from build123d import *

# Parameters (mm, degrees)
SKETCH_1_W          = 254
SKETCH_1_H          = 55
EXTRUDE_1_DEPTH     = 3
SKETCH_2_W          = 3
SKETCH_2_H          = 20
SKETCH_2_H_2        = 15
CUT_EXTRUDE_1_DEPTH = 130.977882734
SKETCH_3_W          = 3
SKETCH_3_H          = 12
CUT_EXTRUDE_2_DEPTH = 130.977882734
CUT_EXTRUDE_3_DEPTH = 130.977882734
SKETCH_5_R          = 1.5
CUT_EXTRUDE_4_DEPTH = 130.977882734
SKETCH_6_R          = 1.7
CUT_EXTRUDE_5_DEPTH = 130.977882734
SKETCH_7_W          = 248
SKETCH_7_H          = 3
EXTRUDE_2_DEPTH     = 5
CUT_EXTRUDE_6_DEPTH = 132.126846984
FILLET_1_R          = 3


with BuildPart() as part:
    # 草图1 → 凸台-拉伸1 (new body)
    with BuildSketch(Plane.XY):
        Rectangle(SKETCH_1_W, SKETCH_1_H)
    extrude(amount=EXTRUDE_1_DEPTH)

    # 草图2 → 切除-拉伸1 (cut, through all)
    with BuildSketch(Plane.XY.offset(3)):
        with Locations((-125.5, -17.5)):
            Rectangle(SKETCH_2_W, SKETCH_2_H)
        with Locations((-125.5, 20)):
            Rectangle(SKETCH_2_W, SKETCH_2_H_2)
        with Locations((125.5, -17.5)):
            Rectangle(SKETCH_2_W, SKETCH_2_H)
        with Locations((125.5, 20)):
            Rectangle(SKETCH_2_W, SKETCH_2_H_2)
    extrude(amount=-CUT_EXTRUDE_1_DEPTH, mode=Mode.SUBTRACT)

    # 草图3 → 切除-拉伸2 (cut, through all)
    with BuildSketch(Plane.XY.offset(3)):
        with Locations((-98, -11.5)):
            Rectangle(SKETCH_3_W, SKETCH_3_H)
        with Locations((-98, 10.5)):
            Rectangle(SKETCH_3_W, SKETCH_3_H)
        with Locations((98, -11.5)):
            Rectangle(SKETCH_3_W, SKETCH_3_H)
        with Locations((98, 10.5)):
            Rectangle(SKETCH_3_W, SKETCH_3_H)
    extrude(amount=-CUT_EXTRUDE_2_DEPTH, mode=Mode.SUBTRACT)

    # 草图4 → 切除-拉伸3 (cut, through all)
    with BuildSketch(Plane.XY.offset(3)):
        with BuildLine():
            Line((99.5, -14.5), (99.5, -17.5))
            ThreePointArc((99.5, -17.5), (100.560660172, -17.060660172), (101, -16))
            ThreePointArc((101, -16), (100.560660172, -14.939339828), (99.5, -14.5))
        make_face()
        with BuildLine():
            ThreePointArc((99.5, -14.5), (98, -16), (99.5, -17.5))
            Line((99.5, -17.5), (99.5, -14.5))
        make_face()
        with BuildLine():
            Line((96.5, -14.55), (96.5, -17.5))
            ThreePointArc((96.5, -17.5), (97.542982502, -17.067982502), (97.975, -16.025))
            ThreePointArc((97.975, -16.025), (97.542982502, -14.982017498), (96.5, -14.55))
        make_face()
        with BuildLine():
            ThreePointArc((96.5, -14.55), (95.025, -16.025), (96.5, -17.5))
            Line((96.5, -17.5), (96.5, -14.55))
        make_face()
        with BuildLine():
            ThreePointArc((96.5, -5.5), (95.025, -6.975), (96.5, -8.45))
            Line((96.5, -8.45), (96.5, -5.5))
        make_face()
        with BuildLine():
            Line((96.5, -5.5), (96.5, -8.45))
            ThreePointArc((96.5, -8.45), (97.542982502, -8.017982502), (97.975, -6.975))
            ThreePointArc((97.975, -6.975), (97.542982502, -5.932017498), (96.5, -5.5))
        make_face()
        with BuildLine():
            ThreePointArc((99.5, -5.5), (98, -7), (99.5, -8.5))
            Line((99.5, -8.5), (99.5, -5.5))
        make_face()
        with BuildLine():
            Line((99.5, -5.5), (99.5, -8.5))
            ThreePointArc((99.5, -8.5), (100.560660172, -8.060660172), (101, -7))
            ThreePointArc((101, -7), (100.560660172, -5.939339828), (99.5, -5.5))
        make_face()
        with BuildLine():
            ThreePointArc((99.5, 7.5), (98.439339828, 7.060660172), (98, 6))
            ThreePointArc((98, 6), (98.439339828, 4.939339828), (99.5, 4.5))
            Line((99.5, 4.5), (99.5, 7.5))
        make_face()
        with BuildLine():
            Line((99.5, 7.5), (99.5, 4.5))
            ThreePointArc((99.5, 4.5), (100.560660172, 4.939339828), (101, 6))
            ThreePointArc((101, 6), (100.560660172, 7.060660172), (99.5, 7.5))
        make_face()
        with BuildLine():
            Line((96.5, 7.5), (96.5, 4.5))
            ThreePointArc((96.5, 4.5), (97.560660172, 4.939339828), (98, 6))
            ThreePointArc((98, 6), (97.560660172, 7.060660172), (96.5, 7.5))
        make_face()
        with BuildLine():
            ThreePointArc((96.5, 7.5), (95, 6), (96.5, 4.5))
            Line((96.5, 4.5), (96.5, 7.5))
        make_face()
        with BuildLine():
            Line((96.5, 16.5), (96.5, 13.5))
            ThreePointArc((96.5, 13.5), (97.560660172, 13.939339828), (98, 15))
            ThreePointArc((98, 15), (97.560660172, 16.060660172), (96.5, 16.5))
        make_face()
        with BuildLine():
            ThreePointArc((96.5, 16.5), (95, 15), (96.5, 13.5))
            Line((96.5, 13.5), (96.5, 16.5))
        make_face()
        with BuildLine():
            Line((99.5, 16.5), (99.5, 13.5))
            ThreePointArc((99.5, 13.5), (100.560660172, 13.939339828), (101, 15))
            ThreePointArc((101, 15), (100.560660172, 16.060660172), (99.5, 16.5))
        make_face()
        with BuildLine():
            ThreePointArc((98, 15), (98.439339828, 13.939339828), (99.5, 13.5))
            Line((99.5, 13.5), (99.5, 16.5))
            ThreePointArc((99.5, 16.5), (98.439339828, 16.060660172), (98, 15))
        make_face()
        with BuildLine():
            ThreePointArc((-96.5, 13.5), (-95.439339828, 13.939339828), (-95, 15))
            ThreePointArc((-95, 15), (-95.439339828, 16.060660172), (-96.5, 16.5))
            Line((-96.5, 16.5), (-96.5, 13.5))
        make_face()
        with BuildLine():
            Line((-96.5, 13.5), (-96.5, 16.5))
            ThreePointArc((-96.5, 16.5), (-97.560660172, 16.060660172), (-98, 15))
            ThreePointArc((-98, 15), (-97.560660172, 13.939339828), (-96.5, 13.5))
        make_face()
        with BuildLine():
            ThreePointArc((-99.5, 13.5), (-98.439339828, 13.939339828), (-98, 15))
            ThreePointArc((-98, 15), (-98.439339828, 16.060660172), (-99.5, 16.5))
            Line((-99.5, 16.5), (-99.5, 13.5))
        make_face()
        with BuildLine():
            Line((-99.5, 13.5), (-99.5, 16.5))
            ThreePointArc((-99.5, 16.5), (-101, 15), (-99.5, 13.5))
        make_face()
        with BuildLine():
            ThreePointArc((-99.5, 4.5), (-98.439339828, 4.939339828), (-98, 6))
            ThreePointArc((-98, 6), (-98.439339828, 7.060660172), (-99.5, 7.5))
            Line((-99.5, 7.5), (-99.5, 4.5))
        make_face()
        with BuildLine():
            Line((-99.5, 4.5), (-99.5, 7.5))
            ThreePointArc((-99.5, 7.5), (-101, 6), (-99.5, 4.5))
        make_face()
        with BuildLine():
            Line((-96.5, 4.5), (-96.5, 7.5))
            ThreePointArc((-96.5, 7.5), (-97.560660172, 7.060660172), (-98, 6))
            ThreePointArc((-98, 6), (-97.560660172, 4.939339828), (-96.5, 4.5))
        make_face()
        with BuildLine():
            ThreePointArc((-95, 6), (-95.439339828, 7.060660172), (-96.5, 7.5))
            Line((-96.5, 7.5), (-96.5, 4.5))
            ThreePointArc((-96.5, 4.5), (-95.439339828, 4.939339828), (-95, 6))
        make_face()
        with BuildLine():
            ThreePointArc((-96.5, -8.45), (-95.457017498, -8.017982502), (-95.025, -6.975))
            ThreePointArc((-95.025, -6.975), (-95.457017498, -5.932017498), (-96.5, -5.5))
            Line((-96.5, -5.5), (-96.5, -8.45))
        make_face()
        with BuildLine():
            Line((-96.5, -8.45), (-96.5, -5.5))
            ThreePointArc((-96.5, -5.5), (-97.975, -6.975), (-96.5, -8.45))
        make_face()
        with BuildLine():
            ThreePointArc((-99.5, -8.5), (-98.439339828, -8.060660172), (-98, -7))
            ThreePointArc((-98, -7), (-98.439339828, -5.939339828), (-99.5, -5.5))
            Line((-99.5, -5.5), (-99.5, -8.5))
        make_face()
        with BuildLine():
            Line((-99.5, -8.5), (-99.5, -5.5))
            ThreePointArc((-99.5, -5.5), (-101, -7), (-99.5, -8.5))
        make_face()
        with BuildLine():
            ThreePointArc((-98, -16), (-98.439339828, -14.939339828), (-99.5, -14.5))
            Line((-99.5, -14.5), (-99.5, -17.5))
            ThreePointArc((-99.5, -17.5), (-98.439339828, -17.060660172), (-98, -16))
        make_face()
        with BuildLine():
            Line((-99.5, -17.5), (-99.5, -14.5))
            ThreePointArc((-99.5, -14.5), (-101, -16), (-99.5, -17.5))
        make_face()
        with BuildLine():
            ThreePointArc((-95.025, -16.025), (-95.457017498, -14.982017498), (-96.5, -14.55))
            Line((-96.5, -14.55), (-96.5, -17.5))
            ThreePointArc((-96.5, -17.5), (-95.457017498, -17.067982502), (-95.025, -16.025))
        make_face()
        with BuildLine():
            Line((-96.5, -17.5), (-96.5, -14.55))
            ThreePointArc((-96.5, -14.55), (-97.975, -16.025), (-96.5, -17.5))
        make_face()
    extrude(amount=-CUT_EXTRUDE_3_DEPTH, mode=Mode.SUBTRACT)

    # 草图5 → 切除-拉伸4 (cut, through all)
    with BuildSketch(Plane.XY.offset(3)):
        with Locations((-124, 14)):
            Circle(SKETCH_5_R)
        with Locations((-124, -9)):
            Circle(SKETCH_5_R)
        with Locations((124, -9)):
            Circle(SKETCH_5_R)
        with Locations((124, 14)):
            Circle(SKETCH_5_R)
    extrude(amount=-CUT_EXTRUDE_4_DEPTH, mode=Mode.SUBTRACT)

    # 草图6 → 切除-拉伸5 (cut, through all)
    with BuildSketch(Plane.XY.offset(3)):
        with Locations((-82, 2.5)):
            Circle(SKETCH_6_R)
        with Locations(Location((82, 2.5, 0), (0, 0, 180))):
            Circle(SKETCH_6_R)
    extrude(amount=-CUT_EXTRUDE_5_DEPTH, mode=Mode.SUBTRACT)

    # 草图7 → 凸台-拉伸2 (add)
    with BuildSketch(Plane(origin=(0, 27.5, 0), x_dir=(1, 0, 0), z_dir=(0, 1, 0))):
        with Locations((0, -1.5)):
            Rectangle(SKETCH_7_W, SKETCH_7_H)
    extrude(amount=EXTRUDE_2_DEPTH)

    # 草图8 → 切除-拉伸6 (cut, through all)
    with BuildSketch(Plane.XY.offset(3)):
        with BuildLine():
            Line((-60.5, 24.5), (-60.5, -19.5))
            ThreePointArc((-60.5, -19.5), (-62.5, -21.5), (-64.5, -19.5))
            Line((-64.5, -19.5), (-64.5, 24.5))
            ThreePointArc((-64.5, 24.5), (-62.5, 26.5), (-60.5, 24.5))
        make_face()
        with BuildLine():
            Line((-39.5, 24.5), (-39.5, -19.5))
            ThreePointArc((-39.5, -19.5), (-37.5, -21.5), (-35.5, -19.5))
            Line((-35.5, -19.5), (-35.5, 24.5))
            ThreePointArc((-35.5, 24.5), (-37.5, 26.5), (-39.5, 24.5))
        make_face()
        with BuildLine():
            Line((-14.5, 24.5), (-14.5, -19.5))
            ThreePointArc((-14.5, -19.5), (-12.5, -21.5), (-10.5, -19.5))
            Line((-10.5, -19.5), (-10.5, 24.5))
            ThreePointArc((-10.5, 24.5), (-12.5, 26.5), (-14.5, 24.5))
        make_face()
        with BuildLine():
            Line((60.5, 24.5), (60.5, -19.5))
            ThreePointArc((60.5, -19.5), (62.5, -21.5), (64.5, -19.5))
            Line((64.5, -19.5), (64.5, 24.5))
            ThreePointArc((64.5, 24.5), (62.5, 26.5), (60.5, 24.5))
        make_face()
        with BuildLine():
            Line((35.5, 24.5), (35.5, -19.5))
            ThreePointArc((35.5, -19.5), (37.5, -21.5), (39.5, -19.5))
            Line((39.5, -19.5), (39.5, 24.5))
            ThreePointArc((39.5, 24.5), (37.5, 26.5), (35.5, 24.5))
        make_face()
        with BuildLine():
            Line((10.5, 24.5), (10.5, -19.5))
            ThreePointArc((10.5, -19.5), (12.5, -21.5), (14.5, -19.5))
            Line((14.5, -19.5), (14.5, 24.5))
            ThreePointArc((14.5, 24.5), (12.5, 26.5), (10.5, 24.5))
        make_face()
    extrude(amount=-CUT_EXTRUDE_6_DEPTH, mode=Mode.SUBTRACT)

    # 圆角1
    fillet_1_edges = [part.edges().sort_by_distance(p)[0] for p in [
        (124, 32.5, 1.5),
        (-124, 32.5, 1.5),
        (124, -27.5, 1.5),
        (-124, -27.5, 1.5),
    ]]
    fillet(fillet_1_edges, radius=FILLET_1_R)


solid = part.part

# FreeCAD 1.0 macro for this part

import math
import FreeCAD as App
import Part
import Sketcher
from FreeCAD import Vector
Q = App.Units.Quantity


def edges_at(feature, points):
    """Names of the edges that pass closest to the given points."""
    edges = feature.Shape.Edges
    near = lambda p: min(range(len(edges)), key=lambda i: edges[i].distToShape(Part.Vertex(*p))[0])
    return sorted({f"Edge{near(p) + 1}" for p in points})

doc = App.newDocument("Part")
body = doc.addObject("PartDesign::Body", "Body")

sketch1 = body.newObject("Sketcher::SketchObject", "Sketch")
sketch1.AttachmentSupport = (doc.getObject("XY_Plane"), [""])
sketch1.MapMode = "FlatFace"
sketch1.addGeometry(Part.LineSegment(Vector(-127, 28, 0), Vector(-127, -28, 0)), False)
sketch1.addGeometry(Part.LineSegment(Vector(-127, -28, 0), Vector(127, -28, 0)), False)
sketch1.addGeometry(Part.LineSegment(Vector(127, -28, 0), Vector(127, 28, 0)), False)
sketch1.addGeometry(Part.LineSegment(Vector(127, 28, 0), Vector(-127, 28, 0)), False)
sketch1.addConstraint(Sketcher.Constraint("Coincident", 0, 2, 1, 1))
sketch1.addConstraint(Sketcher.Constraint("Coincident", 1, 2, 2, 1))
sketch1.addConstraint(Sketcher.Constraint("Coincident", 2, 2, 3, 1))
sketch1.addConstraint(Sketcher.Constraint("Coincident", 3, 2, 0, 1))
sketch1.addConstraint(Sketcher.Constraint("Vertical", 0))
sketch1.addConstraint(Sketcher.Constraint("Horizontal", 1))
sketch1.addConstraint(Sketcher.Constraint("Vertical", 2))
sketch1.addConstraint(Sketcher.Constraint("Horizontal", 3))
sketch1.addConstraint(Sketcher.Constraint("Symmetric", 0, 2, 2, 2, -1, 1))
sketch1.addConstraint(Sketcher.Constraint("DistanceX", 1, 1, 1, 2, Q("254 mm")))
sketch1.addConstraint(Sketcher.Constraint("DistanceY", 0, 2, 0, 1, Q("55 mm")))
pad1 = body.newObject("PartDesign::Pad", "Pad")
pad1.Profile = sketch1
pad1.Length = 3

sketch2 = body.newObject("Sketcher::SketchObject", "Sketch001")
sketch2.AttachmentSupport = (doc.getObject("XY_Plane"), [""])
sketch2.MapMode = "FlatFace"
sketch2.AttachmentOffset = App.Placement(Vector(0, 0, 3), App.Rotation())
sketch2.addGeometry(Part.LineSegment(Vector(-127, -7.5, 0), Vector(-127, -27.5, 0)), False)
sketch2.addGeometry(Part.LineSegment(Vector(-127, -27.5, 0), Vector(-124, -27.5, 0)), False)
sketch2.addGeometry(Part.LineSegment(Vector(-124, -27.5, 0), Vector(-124, -7.5, 0)), False)
sketch2.addGeometry(Part.LineSegment(Vector(-124, -7.5, 0), Vector(-127, -7.5, 0)), False)
sketch2.addGeometry(Part.LineSegment(Vector(-127, 27.5, 0), Vector(-127, 12.5, 0)), False)
sketch2.addGeometry(Part.LineSegment(Vector(-127, 12.5, 0), Vector(-124, 12.5, 0)), False)
sketch2.addGeometry(Part.LineSegment(Vector(-124, 12.5, 0), Vector(-124, 27.5, 0)), False)
sketch2.addGeometry(Part.LineSegment(Vector(-124, 27.5, 0), Vector(-127, 27.5, 0)), False)
sketch2.addGeometry(Part.LineSegment(Vector(124, -7.5, 0), Vector(124, -27.5, 0)), False)
sketch2.addGeometry(Part.LineSegment(Vector(124, -27.5, 0), Vector(127, -27.5, 0)), False)
sketch2.addGeometry(Part.LineSegment(Vector(127, -27.5, 0), Vector(127, -7.5, 0)), False)
sketch2.addGeometry(Part.LineSegment(Vector(127, -7.5, 0), Vector(124, -7.5, 0)), False)
sketch2.addGeometry(Part.LineSegment(Vector(124, 27.5, 0), Vector(124, 12.5, 0)), False)
sketch2.addGeometry(Part.LineSegment(Vector(124, 12.5, 0), Vector(127, 12.5, 0)), False)
sketch2.addGeometry(Part.LineSegment(Vector(127, 12.5, 0), Vector(127, 27.5, 0)), False)
sketch2.addGeometry(Part.LineSegment(Vector(127, 27.5, 0), Vector(124, 27.5, 0)), False)
sketch2.addConstraint(Sketcher.Constraint("Coincident", 0, 2, 1, 1))
sketch2.addConstraint(Sketcher.Constraint("Coincident", 1, 2, 2, 1))
sketch2.addConstraint(Sketcher.Constraint("Coincident", 2, 2, 3, 1))
sketch2.addConstraint(Sketcher.Constraint("Coincident", 3, 2, 0, 1))
sketch2.addConstraint(Sketcher.Constraint("Coincident", 4, 2, 5, 1))
sketch2.addConstraint(Sketcher.Constraint("Coincident", 5, 2, 6, 1))
sketch2.addConstraint(Sketcher.Constraint("Coincident", 6, 2, 7, 1))
sketch2.addConstraint(Sketcher.Constraint("Coincident", 7, 2, 4, 1))
sketch2.addConstraint(Sketcher.Constraint("Coincident", 8, 2, 9, 1))
sketch2.addConstraint(Sketcher.Constraint("Coincident", 9, 2, 10, 1))
sketch2.addConstraint(Sketcher.Constraint("Coincident", 10, 2, 11, 1))
sketch2.addConstraint(Sketcher.Constraint("Coincident", 11, 2, 8, 1))
sketch2.addConstraint(Sketcher.Constraint("Coincident", 12, 2, 13, 1))
sketch2.addConstraint(Sketcher.Constraint("Coincident", 13, 2, 14, 1))
sketch2.addConstraint(Sketcher.Constraint("Coincident", 14, 2, 15, 1))
sketch2.addConstraint(Sketcher.Constraint("Coincident", 15, 2, 12, 1))
sketch2.addConstraint(Sketcher.Constraint("Vertical", 0))
sketch2.addConstraint(Sketcher.Constraint("Horizontal", 1))
sketch2.addConstraint(Sketcher.Constraint("Vertical", 2))
sketch2.addConstraint(Sketcher.Constraint("Horizontal", 3))
sketch2.addConstraint(Sketcher.Constraint("Vertical", 4))
sketch2.addConstraint(Sketcher.Constraint("Horizontal", 5))
sketch2.addConstraint(Sketcher.Constraint("Vertical", 6))
sketch2.addConstraint(Sketcher.Constraint("Horizontal", 7))
sketch2.addConstraint(Sketcher.Constraint("Vertical", 8))
sketch2.addConstraint(Sketcher.Constraint("Horizontal", 9))
sketch2.addConstraint(Sketcher.Constraint("Vertical", 10))
sketch2.addConstraint(Sketcher.Constraint("Horizontal", 11))
sketch2.addConstraint(Sketcher.Constraint("Vertical", 12))
sketch2.addConstraint(Sketcher.Constraint("Horizontal", 13))
sketch2.addConstraint(Sketcher.Constraint("Vertical", 14))
sketch2.addConstraint(Sketcher.Constraint("Horizontal", 15))
sketch2.addConstraint(Sketcher.Constraint("Symmetric", 6, 2, 8, 2, -1, 1))
sketch2.addConstraint(Sketcher.Constraint("Symmetric", 0, 2, 14, 2, -1, 1))
sketch2.addConstraint(Sketcher.Constraint("Symmetric", 1, 2, 8, 2, -2))
sketch2.addConstraint(Sketcher.Constraint("Symmetric", 3, 2, 10, 2, -2))
sketch2.addConstraint(Sketcher.Constraint("Symmetric", 5, 2, 12, 2, -2))
sketch2.addConstraint(Sketcher.Constraint("Vertical", 3, 2, 4, 2))
sketch2.addConstraint(Sketcher.Constraint("DistanceX", 1, 1, 1, 2, Q("3 mm")))
sketch2.addConstraint(Sketcher.Constraint("DistanceY", 0, 2, 0, 1, Q("20 mm")))
sketch2.addConstraint(Sketcher.Constraint("DistanceY", 4, 2, 4, 1, Q("15 mm")))
sketch2.addConstraint(Sketcher.Constraint("DistanceX", 0, 2, -1, 1, Q("127 mm")))
sketch2.addConstraint(Sketcher.Constraint("DistanceY", 3, 2, 4, 2, Q("20 mm")))
pocket1 = body.newObject("PartDesign::Pocket", "Pocket")
pocket1.Profile = sketch2
pocket1.Type = "ThroughAll"

sketch3 = body.newObject("Sketcher::SketchObject", "Sketch002")
sketch3.AttachmentSupport = (doc.getObject("XY_Plane"), [""])
sketch3.MapMode = "FlatFace"
sketch3.AttachmentOffset = App.Placement(Vector(0, 0, 3), App.Rotation())
sketch3.addGeometry(Part.LineSegment(Vector(-99.5, -5.5, 0), Vector(-99.5, -17.5, 0)), False)
sketch3.addGeometry(Part.LineSegment(Vector(-99.5, -17.5, 0), Vector(-96.5, -17.5, 0)), False)
sketch3.addGeometry(Part.LineSegment(Vector(-96.5, -17.5, 0), Vector(-96.5, -5.5, 0)), False)
sketch3.addGeometry(Part.LineSegment(Vector(-96.5, -5.5, 0), Vector(-99.5, -5.5, 0)), False)
sketch3.addGeometry(Part.LineSegment(Vector(-99.5, 16.5, 0), Vector(-99.5, 4.5, 0)), False)
sketch3.addGeometry(Part.LineSegment(Vector(-99.5, 4.5, 0), Vector(-96.5, 4.5, 0)), False)
sketch3.addGeometry(Part.LineSegment(Vector(-96.5, 4.5, 0), Vector(-96.5, 16.5, 0)), False)
sketch3.addGeometry(Part.LineSegment(Vector(-96.5, 16.5, 0), Vector(-99.5, 16.5, 0)), False)
sketch3.addGeometry(Part.LineSegment(Vector(96.5, -5.5, 0), Vector(96.5, -17.5, 0)), False)
sketch3.addGeometry(Part.LineSegment(Vector(96.5, -17.5, 0), Vector(99.5, -17.5, 0)), False)
sketch3.addGeometry(Part.LineSegment(Vector(99.5, -17.5, 0), Vector(99.5, -5.5, 0)), False)
sketch3.addGeometry(Part.LineSegment(Vector(99.5, -5.5, 0), Vector(96.5, -5.5, 0)), False)
sketch3.addGeometry(Part.LineSegment(Vector(96.5, 16.5, 0), Vector(96.5, 4.5, 0)), False)
sketch3.addGeometry(Part.LineSegment(Vector(96.5, 4.5, 0), Vector(99.5, 4.5, 0)), False)
sketch3.addGeometry(Part.LineSegment(Vector(99.5, 4.5, 0), Vector(99.5, 16.5, 0)), False)
sketch3.addGeometry(Part.LineSegment(Vector(99.5, 16.5, 0), Vector(96.5, 16.5, 0)), False)
sketch3.addConstraint(Sketcher.Constraint("Coincident", 0, 2, 1, 1))
sketch3.addConstraint(Sketcher.Constraint("Coincident", 1, 2, 2, 1))
sketch3.addConstraint(Sketcher.Constraint("Coincident", 2, 2, 3, 1))
sketch3.addConstraint(Sketcher.Constraint("Coincident", 3, 2, 0, 1))
sketch3.addConstraint(Sketcher.Constraint("Coincident", 4, 2, 5, 1))
sketch3.addConstraint(Sketcher.Constraint("Coincident", 5, 2, 6, 1))
sketch3.addConstraint(Sketcher.Constraint("Coincident", 6, 2, 7, 1))
sketch3.addConstraint(Sketcher.Constraint("Coincident", 7, 2, 4, 1))
sketch3.addConstraint(Sketcher.Constraint("Coincident", 8, 2, 9, 1))
sketch3.addConstraint(Sketcher.Constraint("Coincident", 9, 2, 10, 1))
sketch3.addConstraint(Sketcher.Constraint("Coincident", 10, 2, 11, 1))
sketch3.addConstraint(Sketcher.Constraint("Coincident", 11, 2, 8, 1))
sketch3.addConstraint(Sketcher.Constraint("Coincident", 12, 2, 13, 1))
sketch3.addConstraint(Sketcher.Constraint("Coincident", 13, 2, 14, 1))
sketch3.addConstraint(Sketcher.Constraint("Coincident", 14, 2, 15, 1))
sketch3.addConstraint(Sketcher.Constraint("Coincident", 15, 2, 12, 1))
sketch3.addConstraint(Sketcher.Constraint("Vertical", 0))
sketch3.addConstraint(Sketcher.Constraint("Horizontal", 1))
sketch3.addConstraint(Sketcher.Constraint("Vertical", 2))
sketch3.addConstraint(Sketcher.Constraint("Horizontal", 3))
sketch3.addConstraint(Sketcher.Constraint("Vertical", 4))
sketch3.addConstraint(Sketcher.Constraint("Horizontal", 5))
sketch3.addConstraint(Sketcher.Constraint("Vertical", 6))
sketch3.addConstraint(Sketcher.Constraint("Horizontal", 7))
sketch3.addConstraint(Sketcher.Constraint("Vertical", 8))
sketch3.addConstraint(Sketcher.Constraint("Horizontal", 9))
sketch3.addConstraint(Sketcher.Constraint("Vertical", 10))
sketch3.addConstraint(Sketcher.Constraint("Horizontal", 11))
sketch3.addConstraint(Sketcher.Constraint("Vertical", 12))
sketch3.addConstraint(Sketcher.Constraint("Horizontal", 13))
sketch3.addConstraint(Sketcher.Constraint("Vertical", 14))
sketch3.addConstraint(Sketcher.Constraint("Horizontal", 15))
sketch3.addConstraint(Sketcher.Constraint("Symmetric", 1, 2, 8, 2, -2))
sketch3.addConstraint(Sketcher.Constraint("Symmetric", 3, 2, 10, 2, -2))
sketch3.addConstraint(Sketcher.Constraint("Symmetric", 5, 2, 12, 2, -2))
sketch3.addConstraint(Sketcher.Constraint("Symmetric", 7, 2, 14, 2, -2))
sketch3.addConstraint(Sketcher.Constraint("Vertical", 3, 2, 4, 2))
sketch3.addConstraint(Sketcher.Constraint("Vertical", 2, 2, 5, 2))
sketch3.addConstraint(Sketcher.Constraint("Equal", 2, 4))
sketch3.addConstraint(Sketcher.Constraint("DistanceX", 1, 1, 1, 2, Q("3 mm")))
sketch3.addConstraint(Sketcher.Constraint("DistanceY", 0, 2, 0, 1, Q("12 mm")))
sketch3.addConstraint(Sketcher.Constraint("DistanceY", 3, 2, 4, 2, Q("10 mm")))
sketch3.addConstraint(Sketcher.Constraint("DistanceX", 1, 2, 8, 2, Q("193 mm")))
sketch3.addConstraint(Sketcher.Constraint("DistanceY", 0, 2, -1, 1, Q("17.5 mm")))
pocket2 = body.newObject("PartDesign::Pocket", "Pocket001")
pocket2.Profile = sketch3
pocket2.Type = "ThroughAll"

sketch4 = body.newObject("Sketcher::SketchObject", "Sketch003")
sketch4.AttachmentSupport = (doc.getObject("XY_Plane"), [""])
sketch4.MapMode = "FlatFace"
sketch4.AttachmentOffset = App.Placement(Vector(0, 0, 3), App.Rotation())
sketch4.addGeometry(Part.ArcOfCircle(Part.Circle(Vector(99.5, -16, 0), Vector(0, 0, 1), 1.5), math.radians(-90), math.radians(0)), False)
sketch4.addGeometry(Part.ArcOfCircle(Part.Circle(Vector(99.5, -16, 0), Vector(0, 0, 1), 1.5), math.radians(0), math.radians(90)), False)
sketch4.addGeometry(Part.ArcOfCircle(Part.Circle(Vector(99.5, -16, 0), Vector(0, 0, 1), 1.5), math.radians(90), math.radians(270)), False)
sketch4.addGeometry(Part.ArcOfCircle(Part.Circle(Vector(96.5, -16, 0), Vector(0, 0, 1), 1.5), math.radians(-90), math.radians(0)), False)
sketch4.addGeometry(Part.ArcOfCircle(Part.Circle(Vector(96.5, -16, 0), Vector(0, 0, 1), 1.5), math.radians(0), math.radians(90)), False)
sketch4.addGeometry(Part.ArcOfCircle(Part.Circle(Vector(96.5, -16, 0), Vector(0, 0, 1), 1.5), math.radians(90), math.radians(270)), False)
sketch4.addGeometry(Part.ArcOfCircle(Part.Circle(Vector(96.5, -7, 0), Vector(0, 0, 1), 1.5), math.radians(90), math.radians(270)), False)
sketch4.addGeometry(Part.ArcOfCircle(Part.Circle(Vector(96.5, -7, 0), Vector(0, 0, 1), 1.5), math.radians(-90), math.radians(0)), False)
sketch4.addGeometry(Part.ArcOfCircle(Part.Circle(Vector(96.5, -7, 0), Vector(0, 0, 1), 1.5), math.radians(0), math.radians(90)), False)
sketch4.addGeometry(Part.ArcOfCircle(Part.Circle(Vector(99.5, -7, 0), Vector(0, 0, 1), 1.5), math.radians(90), math.radians(270)), False)
sketch4.addGeometry(Part.ArcOfCircle(Part.Circle(Vector(99.5, -7, 0), Vector(0, 0, 1), 1.5), math.radians(-90), math.radians(0)), False)
sketch4.addGeometry(Part.ArcOfCircle(Part.Circle(Vector(99.5, -7, 0), Vector(0, 0, 1), 1.5), math.radians(0), math.radians(90)), False)
sketch4.addGeometry(Part.ArcOfCircle(Part.Circle(Vector(99.5, 6, 0), Vector(0, 0, 1), 1.5), math.radians(90), math.radians(180)), False)
sketch4.addGeometry(Part.ArcOfCircle(Part.Circle(Vector(99.5, 6, 0), Vector(0, 0, 1), 1.5), math.radians(180), math.radians(270)), False)
sketch4.addGeometry(Part.ArcOfCircle(Part.Circle(Vector(99.5, 6, 0), Vector(0, 0, 1), 1.5), math.radians(-90), math.radians(0)), False)
sketch4.addGeometry(Part.ArcOfCircle(Part.Circle(Vector(99.5, 6, 0), Vector(0, 0, 1), 1.5), math.radians(0), math.radians(90)), False)
sketch4.addGeometry(Part.ArcOfCircle(Part.Circle(Vector(96.5, 6, 0), Vector(0, 0, 1), 1.5), math.radians(-90), math.radians(0)), False)
sketch4.addGeometry(Part.ArcOfCircle(Part.Circle(Vector(96.5, 6, 0), Vector(0, 0, 1), 1.5), math.radians(0), math.radians(90)), False)
sketch4.addGeometry(Part.ArcOfCircle(Part.Circle(Vector(96.5, 6, 0), Vector(0, 0, 1), 1.5), math.radians(90), math.radians(270)), False)
sketch4.addGeometry(Part.ArcOfCircle(Part.Circle(Vector(96.5, 15, 0), Vector(0, 0, 1), 1.5), math.radians(-90), math.radians(0)), False)
sketch4.addGeometry(Part.ArcOfCircle(Part.Circle(Vector(96.5, 15, 0), Vector(0, 0, 1), 1.5), math.radians(0), math.radians(90)), False)
sketch4.addGeometry(Part.ArcOfCircle(Part.Circle(Vector(96.5, 15, 0), Vector(0, 0, 1), 1.5), math.radians(90), math.radians(270)), False)
sketch4.addGeometry(Part.ArcOfCircle(Part.Circle(Vector(99.5, 15, 0), Vector(0, 0, 1), 1.5), math.radians(-90), math.radians(0)), False)
sketch4.addGeometry(Part.ArcOfCircle(Part.Circle(Vector(99.5, 15, 0), Vector(0, 0, 1), 1.5), math.radians(0), math.radians(90)), False)
sketch4.addGeometry(Part.ArcOfCircle(Part.Circle(Vector(99.5, 15, 0), Vector(0, 0, 1), 1.5), math.radians(90), math.radians(180)), False)
sketch4.addGeometry(Part.ArcOfCircle(Part.Circle(Vector(99.5, 15, 0), Vector(0, 0, 1), 1.5), math.radians(180), math.radians(270)), False)
sketch4.addGeometry(Part.ArcOfCircle(Part.Circle(Vector(-96.5, 15, 0), Vector(0, 0, 1), 1.5), math.radians(-90), math.radians(0)), False)
sketch4.addGeometry(Part.ArcOfCircle(Part.Circle(Vector(-96.5, 15, 0), Vector(0, 0, 1), 1.5), math.radians(0), math.radians(90)), False)
sketch4.addGeometry(Part.ArcOfCircle(Part.Circle(Vector(-96.5, 15, 0), Vector(0, 0, 1), 1.5), math.radians(90), math.radians(180)), False)
sketch4.addGeometry(Part.ArcOfCircle(Part.Circle(Vector(-96.5, 15, 0), Vector(0, 0, 1), 1.5), math.radians(180), math.radians(270)), False)
sketch4.addGeometry(Part.ArcOfCircle(Part.Circle(Vector(-99.5, 15, 0), Vector(0, 0, 1), 1.5), math.radians(-90), math.radians(0)), False)
sketch4.addGeometry(Part.ArcOfCircle(Part.Circle(Vector(-99.5, 15, 0), Vector(0, 0, 1), 1.5), math.radians(0), math.radians(90)), False)
sketch4.addGeometry(Part.ArcOfCircle(Part.Circle(Vector(-99.5, 15, 0), Vector(0, 0, 1), 1.5), math.radians(90), math.radians(270)), False)
sketch4.addGeometry(Part.ArcOfCircle(Part.Circle(Vector(-99.5, 6, 0), Vector(0, 0, 1), 1.5), math.radians(-90), math.radians(0)), False)
sketch4.addGeometry(Part.ArcOfCircle(Part.Circle(Vector(-99.5, 6, 0), Vector(0, 0, 1), 1.5), math.radians(0), math.radians(90)), False)
sketch4.addGeometry(Part.ArcOfCircle(Part.Circle(Vector(-99.5, 6, 0), Vector(0, 0, 1), 1.5), math.radians(90), math.radians(270)), False)
sketch4.addGeometry(Part.ArcOfCircle(Part.Circle(Vector(-96.5, 6, 0), Vector(0, 0, 1), 1.5), math.radians(90), math.radians(180)), False)
sketch4.addGeometry(Part.ArcOfCircle(Part.Circle(Vector(-96.5, 6, 0), Vector(0, 0, 1), 1.5), math.radians(180), math.radians(270)), False)
sketch4.addGeometry(Part.ArcOfCircle(Part.Circle(Vector(-96.5, 6, 0), Vector(0, 0, 1), 1.5), math.radians(-90), math.radians(0)), False)
sketch4.addGeometry(Part.ArcOfCircle(Part.Circle(Vector(-96.5, 6, 0), Vector(0, 0, 1), 1.5), math.radians(0), math.radians(90)), False)
sketch4.addGeometry(Part.ArcOfCircle(Part.Circle(Vector(-96.5, -7, 0), Vector(0, 0, 1), 1.5), math.radians(-90), math.radians(0)), False)
sketch4.addGeometry(Part.ArcOfCircle(Part.Circle(Vector(-96.5, -7, 0), Vector(0, 0, 1), 1.5), math.radians(0), math.radians(90)), False)
sketch4.addGeometry(Part.ArcOfCircle(Part.Circle(Vector(-96.5, -7, 0), Vector(0, 0, 1), 1.5), math.radians(90), math.radians(270)), False)
sketch4.addGeometry(Part.ArcOfCircle(Part.Circle(Vector(-99.5, -7, 0), Vector(0, 0, 1), 1.5), math.radians(-90), math.radians(0)), False)
sketch4.addGeometry(Part.ArcOfCircle(Part.Circle(Vector(-99.5, -7, 0), Vector(0, 0, 1), 1.5), math.radians(0), math.radians(90)), False)
sketch4.addGeometry(Part.ArcOfCircle(Part.Circle(Vector(-99.5, -7, 0), Vector(0, 0, 1), 1.5), math.radians(90), math.radians(270)), False)
sketch4.addGeometry(Part.ArcOfCircle(Part.Circle(Vector(-99.5, -16, 0), Vector(0, 0, 1), 1.5), math.radians(0), math.radians(90)), False)
sketch4.addGeometry(Part.ArcOfCircle(Part.Circle(Vector(-99.5, -16, 0), Vector(0, 0, 1), 1.5), math.radians(90), math.radians(270)), False)
sketch4.addGeometry(Part.ArcOfCircle(Part.Circle(Vector(-99.5, -16, 0), Vector(0, 0, 1), 1.5), math.radians(-90), math.radians(0)), False)
sketch4.addGeometry(Part.ArcOfCircle(Part.Circle(Vector(-96.5, -16, 0), Vector(0, 0, 1), 1.5), math.radians(0), math.radians(90)), False)
sketch4.addGeometry(Part.ArcOfCircle(Part.Circle(Vector(-96.5, -16, 0), Vector(0, 0, 1), 1.5), math.radians(90), math.radians(270)), False)
sketch4.addGeometry(Part.ArcOfCircle(Part.Circle(Vector(-96.5, -16, 0), Vector(0, 0, 1), 1.5), math.radians(-90), math.radians(0)), False)
sketch4.addConstraint(Sketcher.Constraint("Tangent", 0, 2, 1, 1))
sketch4.addConstraint(Sketcher.Constraint("Tangent", 1, 2, 2, 1))
sketch4.addConstraint(Sketcher.Constraint("Tangent", 2, 2, 0, 1))
sketch4.addConstraint(Sketcher.Constraint("Tangent", 3, 2, 4, 1))
sketch4.addConstraint(Sketcher.Constraint("Tangent", 4, 2, 5, 1))
sketch4.addConstraint(Sketcher.Constraint("Tangent", 5, 2, 3, 1))
sketch4.addConstraint(Sketcher.Constraint("Tangent", 6, 2, 7, 1))
sketch4.addConstraint(Sketcher.Constraint("Tangent", 7, 2, 8, 1))
sketch4.addConstraint(Sketcher.Constraint("Tangent", 8, 2, 6, 1))
sketch4.addConstraint(Sketcher.Constraint("Tangent", 9, 2, 10, 1))
sketch4.addConstraint(Sketcher.Constraint("Tangent", 10, 2, 11, 1))
sketch4.addConstraint(Sketcher.Constraint("Tangent", 11, 2, 9, 1))
sketch4.addConstraint(Sketcher.Constraint("Tangent", 12, 2, 13, 1))
sketch4.addConstraint(Sketcher.Constraint("Tangent", 13, 2, 14, 1))
sketch4.addConstraint(Sketcher.Constraint("Tangent", 14, 2, 15, 1))
sketch4.addConstraint(Sketcher.Constraint("Tangent", 15, 2, 12, 1))
sketch4.addConstraint(Sketcher.Constraint("Tangent", 16, 2, 17, 1))
sketch4.addConstraint(Sketcher.Constraint("Tangent", 17, 2, 18, 1))
sketch4.addConstraint(Sketcher.Constraint("Tangent", 18, 2, 16, 1))
sketch4.addConstraint(Sketcher.Constraint("Tangent", 19, 2, 20, 1))
sketch4.addConstraint(Sketcher.Constraint("Tangent", 20, 2, 21, 1))
sketch4.addConstraint(Sketcher.Constraint("Tangent", 21, 2, 19, 1))
sketch4.addConstraint(Sketcher.Constraint("Tangent", 22, 2, 23, 1))
sketch4.addConstraint(Sketcher.Constraint("Tangent", 23, 2, 24, 1))
sketch4.addConstraint(Sketcher.Constraint("Tangent", 24, 2, 25, 1))
sketch4.addConstraint(Sketcher.Constraint("Tangent", 25, 2, 22, 1))
sketch4.addConstraint(Sketcher.Constraint("Tangent", 26, 2, 27, 1))
sketch4.addConstraint(Sketcher.Constraint("Tangent", 27, 2, 28, 1))
sketch4.addConstraint(Sketcher.Constraint("Tangent", 28, 2, 29, 1))
sketch4.addConstraint(Sketcher.Constraint("Tangent", 29, 2, 26, 1))
sketch4.addConstraint(Sketcher.Constraint("Tangent", 30, 2, 31, 1))
sketch4.addConstraint(Sketcher.Constraint("Tangent", 31, 2, 32, 1))
sketch4.addConstraint(Sketcher.Constraint("Tangent", 32, 2, 30, 1))
sketch4.addConstraint(Sketcher.Constraint("Tangent", 33, 2, 34, 1))
sketch4.addConstraint(Sketcher.Constraint("Tangent", 34, 2, 35, 1))
sketch4.addConstraint(Sketcher.Constraint("Tangent", 35, 2, 33, 1))
sketch4.addConstraint(Sketcher.Constraint("Tangent", 36, 2, 37, 1))
sketch4.addConstraint(Sketcher.Constraint("Tangent", 37, 2, 38, 1))
sketch4.addConstraint(Sketcher.Constraint("Tangent", 38, 2, 39, 1))
sketch4.addConstraint(Sketcher.Constraint("Tangent", 39, 2, 36, 1))
sketch4.addConstraint(Sketcher.Constraint("Tangent", 40, 2, 41, 1))
sketch4.addConstraint(Sketcher.Constraint("Tangent", 41, 2, 42, 1))
sketch4.addConstraint(Sketcher.Constraint("Tangent", 42, 2, 40, 1))
sketch4.addConstraint(Sketcher.Constraint("Tangent", 43, 2, 44, 1))
sketch4.addConstraint(Sketcher.Constraint("Tangent", 44, 2, 45, 1))
sketch4.addConstraint(Sketcher.Constraint("Tangent", 45, 2, 43, 1))
sketch4.addConstraint(Sketcher.Constraint("Tangent", 46, 2, 47, 1))
sketch4.addConstraint(Sketcher.Constraint("Tangent", 47, 2, 48, 1))
sketch4.addConstraint(Sketcher.Constraint("Tangent", 48, 2, 46, 1))
sketch4.addConstraint(Sketcher.Constraint("Tangent", 49, 2, 50, 1))
sketch4.addConstraint(Sketcher.Constraint("Tangent", 50, 2, 51, 1))
sketch4.addConstraint(Sketcher.Constraint("Tangent", 51, 2, 49, 1))
sketch4.addConstraint(Sketcher.Constraint("Coincident", 16, 2, 12, 2))
sketch4.addConstraint(Sketcher.Constraint("Coincident", 24, 2, 19, 2))
sketch4.addConstraint(Sketcher.Constraint("Coincident", 30, 2, 28, 2))
sketch4.addConstraint(Sketcher.Constraint("Coincident", 36, 2, 33, 2))
sketch4.addConstraint(Sketcher.Constraint("Equal", 5, 6))
sketch4.addConstraint(Sketcher.Constraint("Equal", 2, 9))
sketch4.addConstraint(Sketcher.Constraint("Equal", 11, 12))
sketch4.addConstraint(Sketcher.Constraint("Equal", 12, 13))
sketch4.addConstraint(Sketcher.Constraint("Equal", 15, 16))
sketch4.addConstraint(Sketcher.Constraint("Equal", 18, 19))
sketch4.addConstraint(Sketcher.Constraint("Equal", 21, 22))
sketch4.addConstraint(Sketcher.Constraint("Equal", 22, 23))
sketch4.addConstraint(Sketcher.Constraint("Equal", 25, 26))
sketch4.addConstraint(Sketcher.Constraint("Equal", 26, 27))
sketch4.addConstraint(Sketcher.Constraint("Equal", 29, 30))
sketch4.addConstraint(Sketcher.Constraint("Equal", 32, 33))
sketch4.addConstraint(Sketcher.Constraint("Equal", 35, 36))
sketch4.addConstraint(Sketcher.Constraint("Equal", 36, 37))
sketch4.addConstraint(Sketcher.Constraint("Equal", 8, 40))
sketch4.addConstraint(Sketcher.Constraint("Equal", 39, 43))
sketch4.addConstraint(Sketcher.Constraint("Equal", 45, 46))
sketch4.addConstraint(Sketcher.Constraint("Equal", 42, 49))
sketch4.addConstraint(Sketcher.Constraint("Symmetric", 19, 3, 26, 3, -2))
sketch4.addConstraint(Sketcher.Constraint("Symmetric", 12, 3, 33, 3, -2))
sketch4.addConstraint(Sketcher.Constraint("Symmetric", 6, 3, 40, 3, -2))
sketch4.addConstraint(Sketcher.Constraint("Symmetric", 9, 3, 43, 3, -2))
sketch4.addConstraint(Sketcher.Constraint("Symmetric", 0, 3, 46, 3, -2))
sketch4.addConstraint(Sketcher.Constraint("Symmetric", 3, 3, 49, 3, -2))
sketch4.addConstraint(Sketcher.Constraint("Symmetric", 23, 2, 31, 2, -2))
sketch4.addConstraint(Sketcher.Constraint("Symmetric", 18, 2, 37, 2, -2))
sketch4.addConstraint(Sketcher.Constraint("Horizontal", 15, 3, 16, 3))
sketch4.addConstraint(Sketcher.Constraint("Horizontal", 21, 3, 22, 3))
sketch4.addConstraint(Sketcher.Constraint("Horizontal", 48, 3, 0, 2))
sketch4.addConstraint(Sketcher.Constraint("Horizontal", 51, 3, 3, 2))
sketch4.addConstraint(Sketcher.Constraint("Horizontal", 2, 2, 5, 2))
sketch4.addConstraint(Sketcher.Constraint("Horizontal", 42, 3, 7, 2))
sketch4.addConstraint(Sketcher.Constraint("Horizontal", 45, 3, 10, 2))
sketch4.addConstraint(Sketcher.Constraint("Horizontal", 8, 2, 11, 2))
sketch4.addConstraint(Sketcher.Constraint("Horizontal", 39, 3, 12, 2))
sketch4.addConstraint(Sketcher.Constraint("Horizontal", 12, 2, 14, 2))
sketch4.addConstraint(Sketcher.Constraint("Horizontal", 32, 3, 19, 2))
sketch4.addConstraint(Sketcher.Constraint("Horizontal", 19, 2, 22, 2))
sketch4.addConstraint(Sketcher.Constraint("Horizontal", 24, 2, 26, 2))
sketch4.addConstraint(Sketcher.Constraint("Horizontal", 26, 2, 28, 2))
sketch4.addConstraint(Sketcher.Constraint("Horizontal", 16, 2, 33, 2))
sketch4.addConstraint(Sketcher.Constraint("Horizontal", 36, 2, 38, 2))
sketch4.addConstraint(Sketcher.Constraint("Horizontal", 7, 2, 40, 2))
sketch4.addConstraint(Sketcher.Constraint("Horizontal", 10, 2, 43, 2))
sketch4.addConstraint(Sketcher.Constraint("Horizontal", 0, 2, 48, 2))
sketch4.addConstraint(Sketcher.Constraint("Horizontal", 3, 2, 51, 2))
sketch4.addConstraint(Sketcher.Constraint("Vertical", 5, 3, 6, 3))
sketch4.addConstraint(Sketcher.Constraint("Vertical", 2, 3, 9, 3))
sketch4.addConstraint(Sketcher.Constraint("Vertical", 11, 3, 12, 3))
sketch4.addConstraint(Sketcher.Constraint("Vertical", 8, 3, 16, 3))
sketch4.addConstraint(Sketcher.Constraint("Vertical", 18, 3, 19, 3))
sketch4.addConstraint(Sketcher.Constraint("Vertical", 25, 3, 1, 2))
sketch4.addConstraint(Sketcher.Constraint("Vertical", 1, 2, 2, 2))
sketch4.addConstraint(Sketcher.Constraint("Vertical", 21, 3, 4, 2))
sketch4.addConstraint(Sketcher.Constraint("Vertical", 4, 2, 5, 2))
sketch4.addConstraint(Sketcher.Constraint("Vertical", 5, 2, 6, 2))
sketch4.addConstraint(Sketcher.Constraint("Vertical", 6, 2, 8, 2))
sketch4.addConstraint(Sketcher.Constraint("Vertical", 2, 2, 9, 2))
sketch4.addConstraint(Sketcher.Constraint("Vertical", 9, 2, 11, 2))
sketch4.addConstraint(Sketcher.Constraint("Vertical", 11, 2, 13, 2))
sketch4.addConstraint(Sketcher.Constraint("Vertical", 13, 2, 15, 2))
sketch4.addConstraint(Sketcher.Constraint("Vertical", 8, 2, 17, 2))
sketch4.addConstraint(Sketcher.Constraint("Vertical", 17, 2, 18, 2))
sketch4.addConstraint(Sketcher.Constraint("Vertical", 18, 2, 20, 2))
sketch4.addConstraint(Sketcher.Constraint("Vertical", 20, 2, 21, 2))
sketch4.addConstraint(Sketcher.Constraint("Vertical", 15, 2, 23, 2))
sketch4.addConstraint(Sketcher.Constraint("Vertical", 23, 2, 25, 2))
sketch4.addConstraint(Sketcher.Constraint("Vertical", 51, 3, 27, 2))
sketch4.addConstraint(Sketcher.Constraint("Vertical", 27, 2, 29, 2))
sketch4.addConstraint(Sketcher.Constraint("Vertical", 31, 2, 32, 2))
sketch4.addConstraint(Sketcher.Constraint("Vertical", 32, 2, 34, 2))
sketch4.addConstraint(Sketcher.Constraint("Vertical", 34, 2, 35, 2))
sketch4.addConstraint(Sketcher.Constraint("Vertical", 37, 2, 39, 2))
sketch4.addConstraint(Sketcher.Constraint("Vertical", 39, 2, 41, 2))
sketch4.addConstraint(Sketcher.Constraint("Vertical", 41, 2, 42, 2))
sketch4.addConstraint(Sketcher.Constraint("Vertical", 35, 2, 44, 2))
sketch4.addConstraint(Sketcher.Constraint("Vertical", 44, 2, 45, 2))
sketch4.addConstraint(Sketcher.Constraint("Vertical", 45, 2, 46, 2))
sketch4.addConstraint(Sketcher.Constraint("Vertical", 46, 2, 47, 2))
sketch4.addConstraint(Sketcher.Constraint("Vertical", 42, 2, 49, 2))
sketch4.addConstraint(Sketcher.Constraint("Vertical", 49, 2, 50, 2))
sketch4.addConstraint(Sketcher.Constraint("Radius", 0, Q("1.5 mm")))
sketch4.addConstraint(Sketcher.Constraint("DistanceY", 0, 3, -1, 1, Q("16 mm")))
sketch4.addConstraint(Sketcher.Constraint("DistanceY", 9, 3, -1, 1, Q("7 mm")))
sketch4.addConstraint(Sketcher.Constraint("DistanceY", -1, 1, 12, 3, Q("6 mm")))
sketch4.addConstraint(Sketcher.Constraint("DistanceY", -1, 1, 19, 3, Q("15 mm")))
sketch4.addConstraint(Sketcher.Constraint("DistanceX", -1, 1, 0, 2, Q("101 mm")))
sketch4.addConstraint(Sketcher.Constraint("Radius", 3, Q("1.475 mm")))
pocket3 = body.newObject("PartDesign::Pocket", "Pocket002")
pocket3.Profile = sketch4
pocket3.Length = 130.977883

sketch5 = body.newObject("Sketcher::SketchObject", "Sketch004")
sketch5.AttachmentSupport = (doc.getObject("XY_Plane"), [""])
sketch5.MapMode = "FlatFace"
sketch5.AttachmentOffset = App.Placement(Vector(0, 0, 3), App.Rotation())
sketch5.addGeometry(Part.Circle(Vector(-124, 14, 0), Vector(0, 0, 1), 1.5), False)
sketch5.addGeometry(Part.Circle(Vector(-124, -9, 0), Vector(0, 0, 1), 1.5), False)
sketch5.addGeometry(Part.Circle(Vector(124, -9, 0), Vector(0, 0, 1), 1.5), False)
sketch5.addGeometry(Part.Circle(Vector(124, 14, 0), Vector(0, 0, 1), 1.5), False)
sketch5.addConstraint(Sketcher.Constraint("Equal", 0, 1))
sketch5.addConstraint(Sketcher.Constraint("Equal", 1, 2))
sketch5.addConstraint(Sketcher.Constraint("Equal", 2, 3))
sketch5.addConstraint(Sketcher.Constraint("Symmetric", 1, 3, 2, 3, -2))
sketch5.addConstraint(Sketcher.Constraint("Symmetric", 0, 3, 3, 3, -2))
sketch5.addConstraint(Sketcher.Constraint("Vertical", 0, 3, 1, 3))
sketch5.addConstraint(Sketcher.Constraint("Diameter", 0, Q("3 mm")))
sketch5.addConstraint(Sketcher.Constraint("DistanceX", 0, 3, -1, 1, Q("124 mm")))
sketch5.addConstraint(Sketcher.Constraint("DistanceY", -1, 1, 0, 3, Q("14 mm")))
sketch5.addConstraint(Sketcher.Constraint("DistanceY", 1, 3, -1, 1, Q("9 mm")))
pocket4 = body.newObject("PartDesign::Pocket", "Pocket003")
pocket4.Profile = sketch5
pocket4.Type = "ThroughAll"

sketch6 = body.newObject("Sketcher::SketchObject", "Sketch005")
sketch6.AttachmentSupport = (doc.getObject("XY_Plane"), [""])
sketch6.MapMode = "FlatFace"
sketch6.AttachmentOffset = App.Placement(Vector(0, 0, 3), App.Rotation())
sketch6.addGeometry(Part.Circle(Vector(-82, 2.5, 0), Vector(0, 0, 1), 1.7), False)
sketch6.addGeometry(Part.Circle(Vector(82, 2.5, 0), Vector(0, 0, 1), 1.7), False)
sketch6.addConstraint(Sketcher.Constraint("Equal", 0, 1))
sketch6.addConstraint(Sketcher.Constraint("Symmetric", 0, 3, 1, 3, -2))
sketch6.addConstraint(Sketcher.Constraint("Diameter", 0, Q("3.4 mm")))
sketch6.addConstraint(Sketcher.Constraint("DistanceX", 0, 3, -1, 1, Q("82 mm")))
sketch6.addConstraint(Sketcher.Constraint("DistanceY", -1, 1, 0, 3, Q("2.5 mm")))
pocket5 = body.newObject("PartDesign::Pocket", "Pocket004")
pocket5.Profile = sketch6
pocket5.Type = "ThroughAll"

sketch7 = body.newObject("Sketcher::SketchObject", "Sketch006")
sketch7.AttachmentSupport = (doc.getObject("XZ_Plane"), [""])
sketch7.MapMode = "FlatFace"
sketch7.AttachmentOffset = App.Placement(Vector(0, 0, -27.5), App.Rotation())
sketch7.addGeometry(Part.LineSegment(Vector(-124, 0, 0), Vector(-124, 3, 0)), False)
sketch7.addGeometry(Part.LineSegment(Vector(-124, 3, 0), Vector(124, 3, 0)), False)
sketch7.addGeometry(Part.LineSegment(Vector(124, 3, 0), Vector(124, 0, 0)), False)
sketch7.addGeometry(Part.LineSegment(Vector(124, 0, 0), Vector(-124, 0, 0)), False)
sketch7.addConstraint(Sketcher.Constraint("Coincident", 0, 2, 1, 1))
sketch7.addConstraint(Sketcher.Constraint("Coincident", 1, 2, 2, 1))
sketch7.addConstraint(Sketcher.Constraint("Coincident", 2, 2, 3, 1))
sketch7.addConstraint(Sketcher.Constraint("Coincident", 3, 2, 0, 1))
sketch7.addConstraint(Sketcher.Constraint("Vertical", 0))
sketch7.addConstraint(Sketcher.Constraint("Horizontal", 1))
sketch7.addConstraint(Sketcher.Constraint("Vertical", 2))
sketch7.addConstraint(Sketcher.Constraint("Horizontal", 3))
sketch7.addConstraint(Sketcher.Constraint("Symmetric", 2, 2, 3, 2, -1, 1))
sketch7.addConstraint(Sketcher.Constraint("DistanceX", 1, 1, 1, 2, Q("248 mm")))
sketch7.addConstraint(Sketcher.Constraint("DistanceY", 0, 1, 0, 2, Q("3 mm")))
pad2 = body.newObject("PartDesign::Pad", "Pad001")
pad2.Profile = sketch7
pad2.Length = 5
pad2.Reversed = True

sketch8 = body.newObject("Sketcher::SketchObject", "Sketch007")
sketch8.AttachmentSupport = (doc.getObject("XY_Plane"), [""])
sketch8.MapMode = "FlatFace"
sketch8.AttachmentOffset = App.Placement(Vector(0, 0, 3), App.Rotation())
sketch8.addGeometry(Part.LineSegment(Vector(-60.5, -19.5, 0), Vector(-60.5, 24.5, 0)), False)
sketch8.addGeometry(Part.ArcOfCircle(Part.Circle(Vector(-62.5, 24.5, 0), Vector(0, 0, 1), 2), math.radians(0), math.radians(180)), False)
sketch8.addGeometry(Part.LineSegment(Vector(-64.5, 24.5, 0), Vector(-64.5, -19.5, 0)), False)
sketch8.addGeometry(Part.ArcOfCircle(Part.Circle(Vector(-62.5, -19.5, 0), Vector(0, 0, 1), 2), math.radians(180), math.radians(360)), False)
sketch8.addGeometry(Part.LineSegment(Vector(-39.5, 24.5, 0), Vector(-39.5, -19.5, 0)), False)
sketch8.addGeometry(Part.ArcOfCircle(Part.Circle(Vector(-37.5, -19.5, 0), Vector(0, 0, 1), 2), math.radians(180), math.radians(360)), False)
sketch8.addGeometry(Part.LineSegment(Vector(-35.5, -19.5, 0), Vector(-35.5, 24.5, 0)), False)
sketch8.addGeometry(Part.ArcOfCircle(Part.Circle(Vector(-37.5, 24.5, 0), Vector(0, 0, 1), 2), math.radians(0), math.radians(180)), False)
sketch8.addGeometry(Part.LineSegment(Vector(-14.5, 24.5, 0), Vector(-14.5, -19.5, 0)), False)
sketch8.addGeometry(Part.ArcOfCircle(Part.Circle(Vector(-12.5, -19.5, 0), Vector(0, 0, 1), 2), math.radians(180), math.radians(360)), False)
sketch8.addGeometry(Part.LineSegment(Vector(-10.5, -19.5, 0), Vector(-10.5, 24.5, 0)), False)
sketch8.addGeometry(Part.ArcOfCircle(Part.Circle(Vector(-12.5, 24.5, 0), Vector(0, 0, 1), 2), math.radians(0), math.radians(180)), False)
sketch8.addGeometry(Part.LineSegment(Vector(60.5, 24.5, 0), Vector(60.5, -19.5, 0)), False)
sketch8.addGeometry(Part.ArcOfCircle(Part.Circle(Vector(62.5, -19.5, 0), Vector(0, 0, 1), 2), math.radians(180), math.radians(360)), False)
sketch8.addGeometry(Part.LineSegment(Vector(64.5, -19.5, 0), Vector(64.5, 24.5, 0)), False)
sketch8.addGeometry(Part.ArcOfCircle(Part.Circle(Vector(62.5, 24.5, 0), Vector(0, 0, 1), 2), math.radians(0), math.radians(180)), False)
sketch8.addGeometry(Part.LineSegment(Vector(35.5, 24.5, 0), Vector(35.5, -19.5, 0)), False)
sketch8.addGeometry(Part.ArcOfCircle(Part.Circle(Vector(37.5, -19.5, 0), Vector(0, 0, 1), 2), math.radians(180), math.radians(360)), False)
sketch8.addGeometry(Part.LineSegment(Vector(39.5, -19.5, 0), Vector(39.5, 24.5, 0)), False)
sketch8.addGeometry(Part.ArcOfCircle(Part.Circle(Vector(37.5, 24.5, 0), Vector(0, 0, 1), 2), math.radians(0), math.radians(180)), False)
sketch8.addGeometry(Part.LineSegment(Vector(10.5, 24.5, 0), Vector(10.5, -19.5, 0)), False)
sketch8.addGeometry(Part.ArcOfCircle(Part.Circle(Vector(12.5, -19.5, 0), Vector(0, 0, 1), 2), math.radians(180), math.radians(360)), False)
sketch8.addGeometry(Part.LineSegment(Vector(14.5, -19.5, 0), Vector(14.5, 24.5, 0)), False)
sketch8.addGeometry(Part.ArcOfCircle(Part.Circle(Vector(12.5, 24.5, 0), Vector(0, 0, 1), 2), math.radians(0), math.radians(180)), False)
sketch8.addConstraint(Sketcher.Constraint("Tangent", 0, 2, 1, 1))
sketch8.addConstraint(Sketcher.Constraint("Tangent", 1, 2, 2, 1))
sketch8.addConstraint(Sketcher.Constraint("Tangent", 2, 2, 3, 1))
sketch8.addConstraint(Sketcher.Constraint("Tangent", 3, 2, 0, 1))
sketch8.addConstraint(Sketcher.Constraint("Tangent", 4, 2, 5, 1))
sketch8.addConstraint(Sketcher.Constraint("Tangent", 5, 2, 6, 1))
sketch8.addConstraint(Sketcher.Constraint("Tangent", 6, 2, 7, 1))
sketch8.addConstraint(Sketcher.Constraint("Tangent", 7, 2, 4, 1))
sketch8.addConstraint(Sketcher.Constraint("Tangent", 8, 2, 9, 1))
sketch8.addConstraint(Sketcher.Constraint("Tangent", 9, 2, 10, 1))
sketch8.addConstraint(Sketcher.Constraint("Tangent", 10, 2, 11, 1))
sketch8.addConstraint(Sketcher.Constraint("Tangent", 11, 2, 8, 1))
sketch8.addConstraint(Sketcher.Constraint("Tangent", 12, 2, 13, 1))
sketch8.addConstraint(Sketcher.Constraint("Tangent", 13, 2, 14, 1))
sketch8.addConstraint(Sketcher.Constraint("Tangent", 14, 2, 15, 1))
sketch8.addConstraint(Sketcher.Constraint("Tangent", 15, 2, 12, 1))
sketch8.addConstraint(Sketcher.Constraint("Tangent", 16, 2, 17, 1))
sketch8.addConstraint(Sketcher.Constraint("Tangent", 17, 2, 18, 1))
sketch8.addConstraint(Sketcher.Constraint("Tangent", 18, 2, 19, 1))
sketch8.addConstraint(Sketcher.Constraint("Tangent", 19, 2, 16, 1))
sketch8.addConstraint(Sketcher.Constraint("Tangent", 20, 2, 21, 1))
sketch8.addConstraint(Sketcher.Constraint("Tangent", 21, 2, 22, 1))
sketch8.addConstraint(Sketcher.Constraint("Tangent", 22, 2, 23, 1))
sketch8.addConstraint(Sketcher.Constraint("Tangent", 23, 2, 20, 1))
sketch8.addConstraint(Sketcher.Constraint("Vertical", 0))
sketch8.addConstraint(Sketcher.Constraint("Vertical", 2))
sketch8.addConstraint(Sketcher.Constraint("Vertical", 4))
sketch8.addConstraint(Sketcher.Constraint("Vertical", 6))
sketch8.addConstraint(Sketcher.Constraint("Vertical", 8))
sketch8.addConstraint(Sketcher.Constraint("Vertical", 10))
sketch8.addConstraint(Sketcher.Constraint("Vertical", 12))
sketch8.addConstraint(Sketcher.Constraint("Vertical", 14))
sketch8.addConstraint(Sketcher.Constraint("Vertical", 16))
sketch8.addConstraint(Sketcher.Constraint("Vertical", 18))
sketch8.addConstraint(Sketcher.Constraint("Vertical", 20))
sketch8.addConstraint(Sketcher.Constraint("Vertical", 22))
sketch8.addConstraint(Sketcher.Constraint("Equal", 3, 5))
sketch8.addConstraint(Sketcher.Constraint("Equal", 7, 9))
sketch8.addConstraint(Sketcher.Constraint("Equal", 11, 13))
sketch8.addConstraint(Sketcher.Constraint("Equal", 15, 17))
sketch8.addConstraint(Sketcher.Constraint("Equal", 19, 21))
sketch8.addConstraint(Sketcher.Constraint("Symmetric", 3, 3, 13, 3, -2))
sketch8.addConstraint(Sketcher.Constraint("Symmetric", 5, 3, 17, 3, -2))
sketch8.addConstraint(Sketcher.Constraint("Symmetric", 9, 3, 21, 3, -2))
sketch8.addConstraint(Sketcher.Constraint("Horizontal", 3, 3, 5, 3))
sketch8.addConstraint(Sketcher.Constraint("Horizontal", 1, 3, 7, 3))
sketch8.addConstraint(Sketcher.Constraint("Horizontal", 5, 3, 9, 3))
sketch8.addConstraint(Sketcher.Constraint("Horizontal", 7, 3, 11, 3))
sketch8.addConstraint(Sketcher.Constraint("Horizontal", 11, 3, 15, 3))
sketch8.addConstraint(Sketcher.Constraint("Horizontal", 15, 3, 19, 3))
sketch8.addConstraint(Sketcher.Constraint("Horizontal", 19, 3, 23, 3))
sketch8.addConstraint(Sketcher.Constraint("Radius", 1, Q("2 mm")))
sketch8.addConstraint(Sketcher.Constraint("DistanceY", 0, 1, 0, 2, Q("44 mm")))
sketch8.addConstraint(Sketcher.Constraint("DistanceX", 3, 3, 5, 3, Q("25 mm")))
sketch8.addConstraint(Sketcher.Constraint("DistanceX", 5, 3, 9, 3, Q("25 mm")))
sketch8.addConstraint(Sketcher.Constraint("DistanceX", 9, 3, 13, 3, Q("75 mm")))
sketch8.addConstraint(Sketcher.Constraint("DistanceY", -1, 1, 1, 3, Q("24.5 mm")))
pocket6 = body.newObject("PartDesign::Pocket", "Pocket005")
pocket6.Profile = sketch8
pocket6.Type = "ThroughAll"
doc.recompute()

fillet = body.newObject("PartDesign::Fillet", "Fillet")
fillet.Base = (pocket6, edges_at(pocket6, [
    (124, 32.5, 1.5),
    (-124, 32.5, 1.5),
    (124, -27.5, 1.5),
    (-124, -27.5, 1.5),
]))
fillet.Radius = 3

doc.recompute()
